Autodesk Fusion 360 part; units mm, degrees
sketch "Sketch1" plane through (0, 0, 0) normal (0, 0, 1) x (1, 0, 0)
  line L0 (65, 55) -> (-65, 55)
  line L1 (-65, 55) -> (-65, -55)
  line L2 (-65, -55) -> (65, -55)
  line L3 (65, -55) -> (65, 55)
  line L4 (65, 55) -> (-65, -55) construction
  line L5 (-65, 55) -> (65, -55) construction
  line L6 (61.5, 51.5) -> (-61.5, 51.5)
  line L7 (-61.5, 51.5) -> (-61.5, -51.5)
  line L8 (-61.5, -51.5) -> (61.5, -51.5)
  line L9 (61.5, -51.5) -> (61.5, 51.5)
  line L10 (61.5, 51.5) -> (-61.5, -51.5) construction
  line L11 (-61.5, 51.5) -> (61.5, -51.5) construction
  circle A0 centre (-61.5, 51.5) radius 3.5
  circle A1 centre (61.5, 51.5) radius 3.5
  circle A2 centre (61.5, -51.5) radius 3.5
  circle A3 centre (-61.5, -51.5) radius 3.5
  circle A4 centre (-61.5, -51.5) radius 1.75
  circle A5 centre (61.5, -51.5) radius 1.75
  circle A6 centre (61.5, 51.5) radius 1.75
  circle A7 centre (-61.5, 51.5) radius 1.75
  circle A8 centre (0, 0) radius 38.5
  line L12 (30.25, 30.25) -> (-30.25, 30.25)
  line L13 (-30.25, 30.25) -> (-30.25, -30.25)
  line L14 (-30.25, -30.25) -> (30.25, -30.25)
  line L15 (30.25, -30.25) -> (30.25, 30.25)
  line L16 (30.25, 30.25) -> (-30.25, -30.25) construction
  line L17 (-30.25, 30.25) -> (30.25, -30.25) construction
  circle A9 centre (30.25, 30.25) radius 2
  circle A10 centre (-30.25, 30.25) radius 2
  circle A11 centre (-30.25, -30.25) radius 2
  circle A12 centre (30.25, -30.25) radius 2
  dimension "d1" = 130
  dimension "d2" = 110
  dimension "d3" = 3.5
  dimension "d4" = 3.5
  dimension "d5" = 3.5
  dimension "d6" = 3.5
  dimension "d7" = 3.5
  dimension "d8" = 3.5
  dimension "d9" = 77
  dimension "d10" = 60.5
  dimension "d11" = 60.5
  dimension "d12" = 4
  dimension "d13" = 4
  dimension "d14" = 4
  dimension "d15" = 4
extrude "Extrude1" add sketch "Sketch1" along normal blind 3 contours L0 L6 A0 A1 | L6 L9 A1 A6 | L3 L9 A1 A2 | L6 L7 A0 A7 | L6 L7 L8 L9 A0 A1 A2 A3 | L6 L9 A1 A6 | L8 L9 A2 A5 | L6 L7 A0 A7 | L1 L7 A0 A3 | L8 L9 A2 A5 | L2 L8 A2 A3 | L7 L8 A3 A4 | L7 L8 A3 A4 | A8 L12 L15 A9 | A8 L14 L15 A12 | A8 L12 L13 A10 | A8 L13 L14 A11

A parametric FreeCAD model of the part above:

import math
import FreeCAD as App
import Part
import Sketcher
from FreeCAD import Vector

doc = App.newDocument("Part")
body = doc.addObject("PartDesign::Body", "Body")

# Sketch on XY plane
sketch1 = doc.addObject("Sketcher::SketchObject", "Sketch")
body.addObject(sketch1)
sketch1.AttachmentSupport = (doc.XY_Plane, [""])
sketch1.MapMode = "FlatFace"
sketch1.addGeometry([
    Part.LineSegment(Vector(61.5, 55, 0), Vector(-61.5, 55, 0)),  # 0
    Part.ArcOfCircle(Part.Circle(Vector(-61.5, 51.5, 0), Vector(0, 0, 1), 3.5), math.radians(90), math.radians(180)),  # 1
    Part.LineSegment(Vector(-65, 51.5, 0), Vector(-65, -51.5, 0)),  # 2
    Part.ArcOfCircle(Part.Circle(Vector(-61.5, -51.5, 0), Vector(0, 0, 1), 3.5), math.radians(180), math.radians(270)),  # 3
    Part.LineSegment(Vector(-61.5, -55, 0), Vector(61.5, -55, 0)),  # 4
    Part.ArcOfCircle(Part.Circle(Vector(61.5, -51.5, 0), Vector(0, 0, 1), 3.5), math.radians(-90), math.radians(0)),  # 5
    Part.LineSegment(Vector(65, -51.5, 0), Vector(65, 51.5, 0)),  # 6
    Part.ArcOfCircle(Part.Circle(Vector(61.5, 51.5, 0), Vector(0, 0, 1), 3.5), math.radians(0), math.radians(90)),  # 7
    Part.Circle(Vector(61.5, 51.5, 0), Vector(0, 0, 1), 1.8),  # 8
    Part.Circle(Vector(0, 0, 0), Vector(0, 0, 1), 38.5),  # 9
    Part.Circle(Vector(30.2, 30.2, 0), Vector(0, 0, 1), 2),  # 10
    Part.Circle(Vector(-30.2, 30.2, 0), Vector(0, 0, 1), 2),  # 11
    Part.Circle(Vector(-30.2, -30.2, 0), Vector(0, 0, 1), 2),  # 12
    Part.Circle(Vector(30.2, -30.2, 0), Vector(0, 0, 1), 2),  # 13
    Part.Circle(Vector(-61.5, 51.5, 0), Vector(0, 0, 1), 1.8),  # 14
    Part.Circle(Vector(61.5, -51.5, 0), Vector(0, 0, 1), 1.8),  # 15
    Part.Circle(Vector(-61.5, -51.5, 0), Vector(0, 0, 1), 1.8),  # 16
], False)
sketch1.addConstraint([
    Sketcher.Constraint("Tangent", 0, 2, 1, 1),
    Sketcher.Constraint("Tangent", 1, 2, 2, 1),
    Sketcher.Constraint("Tangent", 2, 2, 3, 1),
    Sketcher.Constraint("Tangent", 3, 2, 4, 1),
    Sketcher.Constraint("Tangent", 4, 2, 5, 1),
    Sketcher.Constraint("Tangent", 5, 2, 6, 1),
    Sketcher.Constraint("Tangent", 6, 2, 7, 1),
    Sketcher.Constraint("Tangent", 7, 2, 0, 1),
    Sketcher.Constraint("Horizontal", 0),
    Sketcher.Constraint("Vertical", 2),
    Sketcher.Constraint("Horizontal", 4),
    Sketcher.Constraint("Vertical", 6),
    Sketcher.Constraint("Coincident", 9, 3, -1, 1),
    Sketcher.Constraint("Coincident", 8, 3, 7, 3),
    Sketcher.Constraint("Coincident", 14, 3, 1, 3),
    Sketcher.Constraint("Coincident", 15, 3, 5, 3),
    Sketcher.Constraint("Coincident", 16, 3, 3, 3),
    Sketcher.Constraint("Equal", 1, 3),
    Sketcher.Constraint("Equal", 3, 5),
    Sketcher.Constraint("Equal", 5, 7),
    Sketcher.Constraint("Equal", 10, 11),
    Sketcher.Constraint("Equal", 11, 12),
    Sketcher.Constraint("Equal", 12, 13),
    Sketcher.Constraint("Equal", 8, 14),
    Sketcher.Constraint("Equal", 14, 15),
    Sketcher.Constraint("Equal", 15, 16),
    Sketcher.Constraint("Symmetric", 1, 3, 5, 3, -1, 1),
    Sketcher.Constraint("Symmetric", 10, 3, 12, 3, -1, 1),
    Sketcher.Constraint("Symmetric", 11, 3, 13, 3, -1, 1),
    Sketcher.Constraint("Symmetric", 10, 3, 11, 3, -2),
    Sketcher.Constraint("Diameter", 9, 77.0),
    Sketcher.Constraint("Diameter", 10, 4.0),
    Sketcher.Constraint("Diameter", 8, 3.5),
    Sketcher.Constraint("Radius", 1, 3.5),
    Sketcher.Constraint("DistanceX", 11, 3, 10, 3, 60.5),
    Sketcher.Constraint("DistanceY", 12, 3, 11, 3, 60.5),
    Sketcher.Constraint("DistanceX", 0, 2, 0, 1, 123.0),
    Sketcher.Constraint("DistanceY", 2, 2, 2, 1, 103.0),
])
pad1 = doc.addObject("PartDesign::Pad", "Pad")
body.addObject(pad1)
pad1.Profile = sketch1
pad1.Length = 3

doc.recompute()
